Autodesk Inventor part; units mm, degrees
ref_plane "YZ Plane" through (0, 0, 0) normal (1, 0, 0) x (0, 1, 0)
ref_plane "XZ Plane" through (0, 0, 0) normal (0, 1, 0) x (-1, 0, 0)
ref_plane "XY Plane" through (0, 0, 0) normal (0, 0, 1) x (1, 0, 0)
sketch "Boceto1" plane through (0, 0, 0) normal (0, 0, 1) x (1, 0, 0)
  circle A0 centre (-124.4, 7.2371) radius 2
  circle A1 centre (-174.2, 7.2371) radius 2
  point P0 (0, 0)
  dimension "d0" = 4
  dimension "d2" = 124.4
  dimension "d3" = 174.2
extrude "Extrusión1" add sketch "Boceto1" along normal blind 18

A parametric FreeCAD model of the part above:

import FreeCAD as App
import Part
import Sketcher

doc = App.newDocument("Part")
body = doc.addObject("PartDesign::Body", "Body")
body.AllowCompound = True

# Sketch on XY plane
sketch1 = body.newObject("Sketcher::SketchObject", "Sketch")
sketch1.AttachmentSupport = (doc.getObject("XY_Plane"), [""])
sketch1.MapMode = "FlatFace"
sketch1.addGeometry(Part.Circle(App.Vector(-124.4, 7.2, 0), App.Vector(0, 0, 1), 2), False)
sketch1.addGeometry(Part.Circle(App.Vector(-174.2, 7.2, 0), App.Vector(0, 0, 1), 2), False)
sketch1.addConstraint(Sketcher.Constraint("Equal", 0, 1))
sketch1.addConstraint(Sketcher.Constraint("Horizontal", 0, 3, 1, 3))
sketch1.addConstraint(Sketcher.Constraint("Diameter", 0, 4.0))
sketch1.addConstraint(Sketcher.Constraint("DistanceX", 0, 3, -1, 1, 124.4))
sketch1.addConstraint(Sketcher.Constraint("DistanceX", 1, 3, -1, 1, 174.2))
sketch1.addConstraint(Sketcher.Constraint("DistanceY", -1, 1, 0, 3, 7.237))
pad1 = body.newObject("PartDesign::Pad", "Pad")
pad1.Profile = sketch1
pad1.Length = 18

doc.recompute()
